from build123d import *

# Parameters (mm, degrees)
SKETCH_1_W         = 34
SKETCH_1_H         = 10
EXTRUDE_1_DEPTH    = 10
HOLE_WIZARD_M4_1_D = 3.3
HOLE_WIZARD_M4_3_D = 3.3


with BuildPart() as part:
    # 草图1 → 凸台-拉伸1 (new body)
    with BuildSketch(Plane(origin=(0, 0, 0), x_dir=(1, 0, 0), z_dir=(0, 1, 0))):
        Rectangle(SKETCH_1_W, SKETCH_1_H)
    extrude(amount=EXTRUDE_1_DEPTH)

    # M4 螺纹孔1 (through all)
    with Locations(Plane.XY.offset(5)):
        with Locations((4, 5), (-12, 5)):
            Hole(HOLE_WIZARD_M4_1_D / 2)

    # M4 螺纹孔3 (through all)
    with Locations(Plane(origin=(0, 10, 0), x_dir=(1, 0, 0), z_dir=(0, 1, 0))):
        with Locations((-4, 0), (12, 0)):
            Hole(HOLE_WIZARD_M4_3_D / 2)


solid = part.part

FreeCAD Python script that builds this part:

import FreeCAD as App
import Part
import Sketcher

V = App.Vector


def add_polygon(sketch, points):
    """Adds a closed chain of lines whose ends are joined by coincident constraints."""
    first, n = sketch.GeometryCount, len(points)
    for a, b in zip(points, points[1:] + points[:1]):
        sketch.addGeometry(Part.LineSegment(App.Vector(*a, 0), App.Vector(*b, 0)), False)
    for i in range(n):
        sketch.addConstraint(Sketcher.Constraint("Coincident", first + i, 2, first + (i + 1) % n, 1))

doc = App.newDocument("Part")
body = doc.addObject("PartDesign::Body", "Body")

# Sketch on XZ plane
sketch1 = doc.addObject("Sketcher::SketchObject", "Sketch")
body.addObject(sketch1)
sketch1.AttachmentSupport = (doc.XZ_Plane, [""])
sketch1.MapMode = "FlatFace"
add_polygon(sketch1, [(-17, -5), (-17, 5), (17, 5), (17, -5)])  # lines 0-3
sketch1.addConstraint(Sketcher.Constraint("Vertical", 0))
sketch1.addConstraint(Sketcher.Constraint("Horizontal", 1))
sketch1.addConstraint(Sketcher.Constraint("Vertical", 2))
sketch1.addConstraint(Sketcher.Constraint("Horizontal", 3))
sketch1.addConstraint(Sketcher.Constraint("Symmetric", 0, 2, 2, 2, -1, 1))
sketch1.addConstraint(Sketcher.Constraint("DistanceX", 1, 1, 1, 2, 34.0))
sketch1.addConstraint(Sketcher.Constraint("DistanceY", 0, 1, 0, 2, 10.0))
pad1 = doc.addObject("PartDesign::Pad", "Pad")
body.addObject(pad1)
pad1.Profile = sketch1
pad1.Length = 10
pad1.Reversed = True

# Sketch on XY plane
sketch2 = doc.addObject("Sketcher::SketchObject", "Sketch001")
body.addObject(sketch2)
sketch2.AttachmentSupport = (doc.XY_Plane, [""])
sketch2.MapMode = "FlatFace"
sketch2.AttachmentOffset = App.Placement(V(0, 0, 5), App.Rotation())
sketch2.addGeometry(Part.Circle(V(4, 5, 0), V(0, 0, 1), 1.6), False)
sketch2.addGeometry(Part.Circle(V(-12, 5, 0), V(0, 0, 1), 1.6), False)
sketch2.addConstraint(Sketcher.Constraint("Equal", 0, 1))
sketch2.addConstraint(Sketcher.Constraint("Horizontal", 0, 3, 1, 3))
sketch2.addConstraint(Sketcher.Constraint("Diameter", 0, 3.3))
sketch2.addConstraint(Sketcher.Constraint("DistanceX", -1, 1, 0, 3, 4.0))
sketch2.addConstraint(Sketcher.Constraint("DistanceY", -1, 1, 0, 3, 5.0))
sketch2.addConstraint(Sketcher.Constraint("DistanceX", 1, 3, -1, 1, 12.0))
doc.recompute()
hole = doc.addObject("PartDesign::Hole", "Hole")
body.addObject(hole)
hole.Profile = sketch2
hole.ThreadType = "None"
hole.Diameter = 3.3
hole.DepthType = "ThroughAll"

# Sketch on XZ plane
sketch3 = doc.addObject("Sketcher::SketchObject", "Sketch002")
body.addObject(sketch3)
sketch3.AttachmentSupport = (doc.XZ_Plane, [""])
sketch3.MapMode = "FlatFace"
sketch3.AttachmentOffset = App.Placement(V(0, 0, -10), App.Rotation())
sketch3.addGeometry(Part.Circle(V(-4, 0, 0), V(0, 0, 1), 1.6), False)
sketch3.addGeometry(Part.Circle(V(12, 0, 0), V(0, 0, 1), 1.6), False)
sketch3.addConstraint(Sketcher.Constraint("Equal", 0, 1))
sketch3.addConstraint(Sketcher.Constraint("PointOnObject", 0, 3, -1))
sketch3.addConstraint(Sketcher.Constraint("PointOnObject", 1, 3, -1))
sketch3.addConstraint(Sketcher.Constraint("Diameter", 0, 3.3))
sketch3.addConstraint(Sketcher.Constraint("DistanceX", 0, 3, -1, 1, 4.0))
sketch3.addConstraint(Sketcher.Constraint("DistanceX", -1, 1, 1, 3, 12.0))
doc.recompute()
hole2 = doc.addObject("PartDesign::Hole", "Hole001")
body.addObject(hole2)
hole2.Profile = sketch3
hole2.ThreadType = "None"
hole2.Diameter = 3.3
hole2.DepthType = "ThroughAll"
hole2.Reversed = True

doc.recompute()
